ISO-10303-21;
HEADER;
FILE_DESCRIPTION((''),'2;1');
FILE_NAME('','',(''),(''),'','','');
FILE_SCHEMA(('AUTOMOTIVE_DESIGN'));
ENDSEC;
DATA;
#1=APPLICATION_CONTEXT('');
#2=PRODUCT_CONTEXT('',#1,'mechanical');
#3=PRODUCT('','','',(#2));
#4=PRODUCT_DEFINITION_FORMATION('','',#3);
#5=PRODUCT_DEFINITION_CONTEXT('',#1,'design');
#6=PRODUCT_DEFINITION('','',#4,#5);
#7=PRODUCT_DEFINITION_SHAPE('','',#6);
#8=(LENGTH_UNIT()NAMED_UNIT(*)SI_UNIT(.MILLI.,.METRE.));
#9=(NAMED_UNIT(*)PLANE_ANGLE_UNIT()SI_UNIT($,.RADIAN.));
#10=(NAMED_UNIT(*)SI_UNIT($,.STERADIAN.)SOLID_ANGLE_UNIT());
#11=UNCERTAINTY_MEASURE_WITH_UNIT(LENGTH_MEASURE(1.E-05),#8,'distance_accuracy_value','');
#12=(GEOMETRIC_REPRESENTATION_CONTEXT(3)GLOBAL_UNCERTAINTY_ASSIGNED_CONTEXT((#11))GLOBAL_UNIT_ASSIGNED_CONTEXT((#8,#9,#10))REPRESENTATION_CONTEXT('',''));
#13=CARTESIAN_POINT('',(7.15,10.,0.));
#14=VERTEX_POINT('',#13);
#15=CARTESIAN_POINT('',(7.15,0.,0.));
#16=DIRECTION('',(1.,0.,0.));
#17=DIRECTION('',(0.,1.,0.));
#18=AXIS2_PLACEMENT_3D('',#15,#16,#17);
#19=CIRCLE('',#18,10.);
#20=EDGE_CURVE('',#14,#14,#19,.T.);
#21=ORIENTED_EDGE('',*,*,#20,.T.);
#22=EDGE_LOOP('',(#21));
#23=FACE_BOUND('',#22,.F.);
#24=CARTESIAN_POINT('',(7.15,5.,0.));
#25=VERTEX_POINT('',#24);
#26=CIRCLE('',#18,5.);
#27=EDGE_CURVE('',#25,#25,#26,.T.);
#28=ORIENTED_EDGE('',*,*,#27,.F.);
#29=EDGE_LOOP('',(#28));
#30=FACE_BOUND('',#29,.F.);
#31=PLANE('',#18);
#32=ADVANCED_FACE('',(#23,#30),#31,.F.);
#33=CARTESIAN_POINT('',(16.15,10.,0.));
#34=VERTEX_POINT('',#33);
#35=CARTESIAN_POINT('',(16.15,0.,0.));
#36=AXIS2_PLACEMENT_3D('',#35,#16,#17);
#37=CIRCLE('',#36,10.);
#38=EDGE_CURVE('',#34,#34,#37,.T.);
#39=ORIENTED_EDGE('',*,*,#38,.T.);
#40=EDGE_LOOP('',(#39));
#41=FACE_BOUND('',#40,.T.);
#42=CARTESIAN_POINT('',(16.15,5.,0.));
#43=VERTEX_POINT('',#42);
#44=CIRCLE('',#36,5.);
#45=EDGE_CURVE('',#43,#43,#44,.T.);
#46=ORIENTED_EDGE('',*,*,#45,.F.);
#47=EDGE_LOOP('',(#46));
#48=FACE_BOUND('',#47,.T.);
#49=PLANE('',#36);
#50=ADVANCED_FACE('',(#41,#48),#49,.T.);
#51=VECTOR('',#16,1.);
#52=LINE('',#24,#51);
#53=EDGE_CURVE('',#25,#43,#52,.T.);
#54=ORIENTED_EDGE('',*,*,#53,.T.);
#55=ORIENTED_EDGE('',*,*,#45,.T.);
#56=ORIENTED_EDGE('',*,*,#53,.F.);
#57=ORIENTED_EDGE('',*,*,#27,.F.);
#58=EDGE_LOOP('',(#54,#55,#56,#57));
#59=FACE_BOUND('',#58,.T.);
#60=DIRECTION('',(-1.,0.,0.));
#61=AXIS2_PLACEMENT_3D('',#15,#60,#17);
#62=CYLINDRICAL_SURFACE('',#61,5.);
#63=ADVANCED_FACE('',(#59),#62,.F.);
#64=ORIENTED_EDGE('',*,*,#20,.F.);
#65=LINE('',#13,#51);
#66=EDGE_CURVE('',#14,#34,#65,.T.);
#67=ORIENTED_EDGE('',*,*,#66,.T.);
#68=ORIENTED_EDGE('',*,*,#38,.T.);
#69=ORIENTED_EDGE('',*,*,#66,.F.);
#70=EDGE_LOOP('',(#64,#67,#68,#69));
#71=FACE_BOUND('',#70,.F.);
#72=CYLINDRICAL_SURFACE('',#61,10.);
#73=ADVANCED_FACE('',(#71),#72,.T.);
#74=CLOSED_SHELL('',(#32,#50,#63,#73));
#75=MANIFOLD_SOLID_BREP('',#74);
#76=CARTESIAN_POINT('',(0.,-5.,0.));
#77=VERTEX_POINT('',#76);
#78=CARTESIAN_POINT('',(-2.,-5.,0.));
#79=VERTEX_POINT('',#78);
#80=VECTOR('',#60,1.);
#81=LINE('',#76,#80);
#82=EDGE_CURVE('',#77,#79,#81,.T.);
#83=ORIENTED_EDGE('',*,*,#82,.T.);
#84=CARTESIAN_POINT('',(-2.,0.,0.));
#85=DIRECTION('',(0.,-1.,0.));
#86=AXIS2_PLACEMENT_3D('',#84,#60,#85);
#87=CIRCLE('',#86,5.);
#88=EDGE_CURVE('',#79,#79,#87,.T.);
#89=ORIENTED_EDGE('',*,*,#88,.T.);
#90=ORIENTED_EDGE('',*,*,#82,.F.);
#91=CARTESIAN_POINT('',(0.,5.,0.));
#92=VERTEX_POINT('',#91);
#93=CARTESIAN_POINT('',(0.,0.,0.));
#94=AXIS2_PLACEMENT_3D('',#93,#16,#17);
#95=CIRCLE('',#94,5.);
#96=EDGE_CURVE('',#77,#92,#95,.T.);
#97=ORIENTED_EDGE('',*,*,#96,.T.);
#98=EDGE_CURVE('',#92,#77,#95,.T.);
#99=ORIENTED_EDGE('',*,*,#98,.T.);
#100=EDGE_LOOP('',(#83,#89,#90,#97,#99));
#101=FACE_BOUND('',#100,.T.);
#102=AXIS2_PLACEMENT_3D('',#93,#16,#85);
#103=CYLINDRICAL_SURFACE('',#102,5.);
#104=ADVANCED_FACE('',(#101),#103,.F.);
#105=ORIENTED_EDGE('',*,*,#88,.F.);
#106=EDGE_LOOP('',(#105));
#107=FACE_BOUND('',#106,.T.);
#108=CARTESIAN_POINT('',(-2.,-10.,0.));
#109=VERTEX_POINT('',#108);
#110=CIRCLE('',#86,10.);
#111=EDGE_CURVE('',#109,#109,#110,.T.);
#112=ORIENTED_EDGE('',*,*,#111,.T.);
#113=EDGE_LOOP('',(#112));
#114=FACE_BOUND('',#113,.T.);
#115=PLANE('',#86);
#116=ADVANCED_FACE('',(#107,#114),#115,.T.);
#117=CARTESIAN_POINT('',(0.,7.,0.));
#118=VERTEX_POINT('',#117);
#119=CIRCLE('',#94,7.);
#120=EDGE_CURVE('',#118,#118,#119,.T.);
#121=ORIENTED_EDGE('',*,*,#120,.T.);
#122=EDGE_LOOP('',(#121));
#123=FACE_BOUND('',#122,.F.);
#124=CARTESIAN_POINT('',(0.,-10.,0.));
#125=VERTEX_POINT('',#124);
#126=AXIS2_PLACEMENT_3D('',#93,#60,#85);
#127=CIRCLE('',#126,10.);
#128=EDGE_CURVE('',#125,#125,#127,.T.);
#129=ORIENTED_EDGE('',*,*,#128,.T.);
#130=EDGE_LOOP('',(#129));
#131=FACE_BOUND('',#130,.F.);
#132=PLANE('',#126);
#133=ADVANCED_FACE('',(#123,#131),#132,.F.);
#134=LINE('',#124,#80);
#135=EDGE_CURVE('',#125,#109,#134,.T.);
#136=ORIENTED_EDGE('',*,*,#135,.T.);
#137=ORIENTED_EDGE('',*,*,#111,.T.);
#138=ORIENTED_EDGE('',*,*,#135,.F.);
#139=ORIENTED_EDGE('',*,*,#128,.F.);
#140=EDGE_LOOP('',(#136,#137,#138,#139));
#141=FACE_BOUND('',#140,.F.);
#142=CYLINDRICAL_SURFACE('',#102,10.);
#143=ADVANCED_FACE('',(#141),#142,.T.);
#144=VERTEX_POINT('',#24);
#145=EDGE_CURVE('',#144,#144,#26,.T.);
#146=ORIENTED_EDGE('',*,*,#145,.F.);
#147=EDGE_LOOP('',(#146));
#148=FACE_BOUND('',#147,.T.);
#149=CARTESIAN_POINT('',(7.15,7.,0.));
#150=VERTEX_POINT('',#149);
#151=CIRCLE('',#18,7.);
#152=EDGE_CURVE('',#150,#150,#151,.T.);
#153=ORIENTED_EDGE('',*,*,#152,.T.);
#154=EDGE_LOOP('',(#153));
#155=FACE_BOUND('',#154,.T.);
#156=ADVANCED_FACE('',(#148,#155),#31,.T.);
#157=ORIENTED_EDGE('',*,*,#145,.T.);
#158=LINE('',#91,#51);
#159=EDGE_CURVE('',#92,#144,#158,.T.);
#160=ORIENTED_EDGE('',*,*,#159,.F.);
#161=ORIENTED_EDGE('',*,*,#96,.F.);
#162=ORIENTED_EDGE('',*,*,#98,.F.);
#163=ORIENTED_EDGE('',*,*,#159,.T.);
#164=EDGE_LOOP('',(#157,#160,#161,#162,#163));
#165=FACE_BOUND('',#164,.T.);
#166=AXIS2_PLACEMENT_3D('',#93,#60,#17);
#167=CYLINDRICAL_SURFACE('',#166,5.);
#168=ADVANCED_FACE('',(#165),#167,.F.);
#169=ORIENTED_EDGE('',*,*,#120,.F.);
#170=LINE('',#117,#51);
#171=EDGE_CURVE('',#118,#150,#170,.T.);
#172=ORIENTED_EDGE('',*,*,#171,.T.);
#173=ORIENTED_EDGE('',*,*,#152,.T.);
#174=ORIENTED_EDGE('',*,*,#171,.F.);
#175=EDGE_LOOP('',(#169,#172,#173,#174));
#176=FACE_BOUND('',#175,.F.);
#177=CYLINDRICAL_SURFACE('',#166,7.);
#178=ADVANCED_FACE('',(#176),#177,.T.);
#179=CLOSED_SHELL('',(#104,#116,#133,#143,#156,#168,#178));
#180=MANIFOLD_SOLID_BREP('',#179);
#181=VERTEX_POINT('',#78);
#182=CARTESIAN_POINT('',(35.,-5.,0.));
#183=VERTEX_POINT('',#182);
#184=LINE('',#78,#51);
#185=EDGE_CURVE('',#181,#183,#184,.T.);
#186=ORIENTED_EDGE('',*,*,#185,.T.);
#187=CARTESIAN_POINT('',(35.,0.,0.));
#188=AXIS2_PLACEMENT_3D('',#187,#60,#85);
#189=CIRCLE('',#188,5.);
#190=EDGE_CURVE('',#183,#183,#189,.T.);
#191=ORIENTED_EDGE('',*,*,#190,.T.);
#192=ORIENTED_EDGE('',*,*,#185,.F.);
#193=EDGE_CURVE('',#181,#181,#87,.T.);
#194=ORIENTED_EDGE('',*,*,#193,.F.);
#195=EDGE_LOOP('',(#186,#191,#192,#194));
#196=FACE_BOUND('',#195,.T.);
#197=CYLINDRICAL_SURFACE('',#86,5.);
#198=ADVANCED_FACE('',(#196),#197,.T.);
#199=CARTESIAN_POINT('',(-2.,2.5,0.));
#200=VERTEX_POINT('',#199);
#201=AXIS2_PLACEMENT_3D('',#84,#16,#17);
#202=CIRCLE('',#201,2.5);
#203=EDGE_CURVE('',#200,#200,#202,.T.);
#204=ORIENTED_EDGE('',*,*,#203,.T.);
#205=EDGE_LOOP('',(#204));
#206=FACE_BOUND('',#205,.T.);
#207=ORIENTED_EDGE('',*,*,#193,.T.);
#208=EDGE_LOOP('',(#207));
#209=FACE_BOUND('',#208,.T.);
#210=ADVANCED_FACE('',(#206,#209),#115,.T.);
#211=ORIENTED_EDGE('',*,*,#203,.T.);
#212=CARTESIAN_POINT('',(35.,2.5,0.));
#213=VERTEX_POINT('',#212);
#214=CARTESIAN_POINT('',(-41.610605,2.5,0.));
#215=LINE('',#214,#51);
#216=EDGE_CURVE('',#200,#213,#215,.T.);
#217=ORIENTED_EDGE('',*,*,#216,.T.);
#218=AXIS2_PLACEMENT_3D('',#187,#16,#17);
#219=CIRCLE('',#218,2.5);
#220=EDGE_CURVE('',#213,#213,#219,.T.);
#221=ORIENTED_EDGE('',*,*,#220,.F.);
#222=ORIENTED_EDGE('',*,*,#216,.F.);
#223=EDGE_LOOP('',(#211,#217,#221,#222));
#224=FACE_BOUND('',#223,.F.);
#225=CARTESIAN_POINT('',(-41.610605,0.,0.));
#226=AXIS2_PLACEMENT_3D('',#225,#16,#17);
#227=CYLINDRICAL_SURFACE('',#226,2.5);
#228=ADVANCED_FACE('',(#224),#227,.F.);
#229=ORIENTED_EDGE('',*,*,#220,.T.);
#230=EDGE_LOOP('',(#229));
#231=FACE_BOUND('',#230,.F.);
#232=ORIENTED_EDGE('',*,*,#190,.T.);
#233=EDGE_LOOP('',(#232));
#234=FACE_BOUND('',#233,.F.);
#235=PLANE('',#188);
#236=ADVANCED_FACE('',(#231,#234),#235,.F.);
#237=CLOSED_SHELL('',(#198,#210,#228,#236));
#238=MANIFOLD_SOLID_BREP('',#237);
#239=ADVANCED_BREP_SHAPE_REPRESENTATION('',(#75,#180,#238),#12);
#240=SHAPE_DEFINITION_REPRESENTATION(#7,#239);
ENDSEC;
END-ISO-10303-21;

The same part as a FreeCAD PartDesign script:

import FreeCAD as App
import Part
import Sketcher
from FreeCAD import Vector
Q = App.Units.Quantity

doc = App.newDocument("Part")
body = doc.addObject("PartDesign::Body", "Body")

sketch1 = body.newObject("Sketcher::SketchObject", "Sketch")
sketch1.AttachmentSupport = (doc.getObject("YZ_Plane"), [""])
sketch1.MapMode = "FlatFace"
sketch1.addGeometry(Part.Circle(Vector(0, 0, 0), Vector(0, 0, 1), 7), False)
sketch1.addGeometry(Part.Circle(Vector(0, 0, 0), Vector(0, 0, 1), 5), False)
sketch1.addConstraint(Sketcher.Constraint("Coincident", 0, 3, -1, 1))
sketch1.addConstraint(Sketcher.Constraint("Coincident", 1, 3, -1, 1))
sketch1.addConstraint(Sketcher.Constraint("Diameter", 0, Q("14 mm")))
sketch1.addConstraint(Sketcher.Constraint("Diameter", 1, Q("10 mm")))
pad1 = body.newObject("PartDesign::Pad", "Pad")
pad1.Profile = sketch1
pad1.Length = 7.15

sketch2 = body.newObject("Sketcher::SketchObject", "Sketch001")
sketch2.AttachmentSupport = (doc.getObject("YZ_Plane"), [""])
sketch2.MapMode = "FlatFace"
sketch2.addGeometry(Part.Circle(Vector(0, 0, 0), Vector(0, 0, 1), 10), False)
sketch2.addGeometry(Part.Circle(Vector(0, 0, 0), Vector(0, 0, 1), 5), False)
sketch2.addConstraint(Sketcher.Constraint("Coincident", 0, 3, -1, 1))
sketch2.addConstraint(Sketcher.Constraint("Coincident", 1, 3, -1, 1))
sketch2.addConstraint(Sketcher.Constraint("Diameter", 0, Q("20 mm")))
sketch2.addConstraint(Sketcher.Constraint("Diameter", 1, Q("10 mm")))
pad2 = body.newObject("PartDesign::Pad", "Pad001")
pad2.Profile = sketch2
pad2.Length = 2
pad2.Reversed = True
body2 = doc.addObject("PartDesign::Body", "Body001")

sketch3 = body2.newObject("Sketcher::SketchObject", "Sketch002")
sketch3.AttachmentSupport = (doc.getObject("YZ_Plane001"), [""])
sketch3.MapMode = "FlatFace"
sketch3.AttachmentOffset = App.Placement(Vector(0, 0, 7.15), App.Rotation())
sketch3.addGeometry(Part.Circle(Vector(0, 0, 0), Vector(0, 0, 1), 10), False)
sketch3.addGeometry(Part.Circle(Vector(0, 0, 0), Vector(0, 0, 1), 5), False)
sketch3.addConstraint(Sketcher.Constraint("Coincident", 0, 3, -1, 1))
sketch3.addConstraint(Sketcher.Constraint("Coincident", 1, 3, -1, 1))
sketch3.addConstraint(Sketcher.Constraint("Diameter", 0, Q("20 mm")))
sketch3.addConstraint(Sketcher.Constraint("Diameter", 1, Q("10 mm")))
pad3 = body2.newObject("PartDesign::Pad", "Pad002")
pad3.Profile = sketch3
pad3.Length = 9
body3 = doc.addObject("PartDesign::Body", "Body002")

sketch4 = body3.newObject("Sketcher::SketchObject", "Sketch003")
sketch4.AttachmentSupport = (doc.getObject("YZ_Plane002"), [""])
sketch4.MapMode = "FlatFace"
sketch4.AttachmentOffset = App.Placement(Vector(0, 0, -2), App.Rotation())
sketch4.addGeometry(Part.Circle(Vector(0, 0, 0), Vector(0, 0, 1), 5), False)
sketch4.addConstraint(Sketcher.Constraint("Coincident", 0, 3, -1, 1))
sketch4.addConstraint(Sketcher.Constraint("Diameter", 0, Q("10 mm")))
pad4 = body3.newObject("PartDesign::Pad", "Pad003")
pad4.Profile = sketch4
pad4.Length = 37

sketch5 = body3.newObject("Sketcher::SketchObject", "Sketch004")
sketch5.AttachmentSupport = (doc.getObject("YZ_Plane002"), [""])
sketch5.MapMode = "FlatFace"
sketch5.AttachmentOffset = App.Placement(Vector(0, 0, -2), App.Rotation())
sketch5.addGeometry(Part.Circle(Vector(0, 0, 0), Vector(0, 0, 1), 2.5), False)
sketch5.addConstraint(Sketcher.Constraint("Coincident", 0, 3, -1, 1))
sketch5.addConstraint(Sketcher.Constraint("Diameter", 0, Q("5 mm")))
doc.recompute()
hole = body3.newObject("PartDesign::Hole", "Hole")
hole.Profile = sketch5
hole.ThreadType = "None"
hole.Diameter = 5
hole.DepthType = "ThroughAll"
hole.Reversed = True

doc.recompute()
